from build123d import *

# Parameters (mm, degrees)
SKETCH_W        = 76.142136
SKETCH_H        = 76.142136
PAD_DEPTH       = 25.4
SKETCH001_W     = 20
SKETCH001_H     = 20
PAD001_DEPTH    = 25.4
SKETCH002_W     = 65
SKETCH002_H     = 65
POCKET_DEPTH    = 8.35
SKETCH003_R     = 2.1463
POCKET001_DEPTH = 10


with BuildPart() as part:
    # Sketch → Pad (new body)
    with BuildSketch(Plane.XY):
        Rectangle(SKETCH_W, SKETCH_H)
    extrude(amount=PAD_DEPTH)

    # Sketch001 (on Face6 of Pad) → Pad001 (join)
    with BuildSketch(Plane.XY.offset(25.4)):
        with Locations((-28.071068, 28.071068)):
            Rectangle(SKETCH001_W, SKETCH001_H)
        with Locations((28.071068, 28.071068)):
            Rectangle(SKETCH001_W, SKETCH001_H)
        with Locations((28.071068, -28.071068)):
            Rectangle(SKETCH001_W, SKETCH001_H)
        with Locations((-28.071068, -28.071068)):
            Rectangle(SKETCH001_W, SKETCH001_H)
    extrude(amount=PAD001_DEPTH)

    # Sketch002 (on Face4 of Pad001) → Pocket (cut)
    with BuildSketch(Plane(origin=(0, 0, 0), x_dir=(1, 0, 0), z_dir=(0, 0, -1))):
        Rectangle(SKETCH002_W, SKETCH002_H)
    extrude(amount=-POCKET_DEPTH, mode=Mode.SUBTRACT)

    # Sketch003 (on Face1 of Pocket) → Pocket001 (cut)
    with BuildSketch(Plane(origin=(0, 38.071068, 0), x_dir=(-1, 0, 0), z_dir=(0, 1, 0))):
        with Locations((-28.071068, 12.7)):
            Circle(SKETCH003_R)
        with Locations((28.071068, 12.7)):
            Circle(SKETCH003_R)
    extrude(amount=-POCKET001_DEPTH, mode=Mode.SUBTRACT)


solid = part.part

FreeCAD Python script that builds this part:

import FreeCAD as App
import Part
import Sketcher

V = App.Vector
Q = App.Units.Quantity


def add_polygon(sketch, points):
    """Adds a closed chain of lines whose ends are joined by coincident constraints."""
    first, n = sketch.GeometryCount, len(points)
    for a, b in zip(points, points[1:] + points[:1]):
        sketch.addGeometry(Part.LineSegment(App.Vector(*a, 0), App.Vector(*b, 0)), False)
    for i in range(n):
        sketch.addConstraint(Sketcher.Constraint("Coincident", first + i, 2, first + (i + 1) % n, 1))

doc = App.newDocument("Part")
body = doc.addObject("PartDesign::Body", "Body")

# Sketch on XY plane
sketch1 = body.newObject("Sketcher::SketchObject", "Sketch")
sketch1.AttachmentSupport = (doc.getObject("XY_Plane"), [""])
sketch1.MapMode = "FlatFace"
add_polygon(sketch1, [(-38, 38), (-38, -38), (38, -38), (38, 38)])  # lines 0-3
sketch1.addConstraint(Sketcher.Constraint("Vertical", 0))
sketch1.addConstraint(Sketcher.Constraint("Horizontal", 1))
sketch1.addConstraint(Sketcher.Constraint("Vertical", 2))
sketch1.addConstraint(Sketcher.Constraint("Horizontal", 3))
sketch1.addConstraint(Sketcher.Constraint("Symmetric", 0, 2, 2, 2, -1, 1))
sketch1.addConstraint(Sketcher.Constraint("Equal", 3, 0))
sketch1.addConstraint(Sketcher.Constraint("DistanceX", 1, 1, 1, 2, Q("76.142136 mm")))
pad1 = body.newObject("PartDesign::Pad", "Pad")
pad1.Profile = sketch1
pad1.Length = 25.4

# Sketch on XY plane
sketch2 = body.newObject("Sketcher::SketchObject", "Sketch001")
sketch2.AttachmentSupport = (doc.getObject("XY_Plane"), [""])
sketch2.MapMode = "FlatFace"
sketch2.AttachmentOffset = App.Placement(V(0, 0, 25.4), App.Rotation())
add_polygon(sketch2, [(-38, 38), (-38, 18), (-18, 18), (-18, 38)])  # lines 0-3
add_polygon(sketch2, [(18, 38), (18, 18), (38, 18), (38, 38)])  # lines 4-7
add_polygon(sketch2, [(18, -18), (18, -38), (38, -38), (38, -18)])  # lines 8-11
add_polygon(sketch2, [(-38, -18), (-38, -38), (-18, -38), (-18, -18)])  # lines 12-15
sketch2.addConstraint(Sketcher.Constraint("Vertical", 0))
sketch2.addConstraint(Sketcher.Constraint("Horizontal", 1))
sketch2.addConstraint(Sketcher.Constraint("Vertical", 2))
sketch2.addConstraint(Sketcher.Constraint("Horizontal", 3))
sketch2.addConstraint(Sketcher.Constraint("Vertical", 4))
sketch2.addConstraint(Sketcher.Constraint("Horizontal", 5))
sketch2.addConstraint(Sketcher.Constraint("Vertical", 6))
sketch2.addConstraint(Sketcher.Constraint("Horizontal", 7))
sketch2.addConstraint(Sketcher.Constraint("Vertical", 8))
sketch2.addConstraint(Sketcher.Constraint("Horizontal", 9))
sketch2.addConstraint(Sketcher.Constraint("Vertical", 10))
sketch2.addConstraint(Sketcher.Constraint("Horizontal", 11))
sketch2.addConstraint(Sketcher.Constraint("Vertical", 12))
sketch2.addConstraint(Sketcher.Constraint("Horizontal", 13))
sketch2.addConstraint(Sketcher.Constraint("Vertical", 14))
sketch2.addConstraint(Sketcher.Constraint("Horizontal", 15))
sketch2.addConstraint(Sketcher.Constraint("Symmetric", 2, 2, 8, 2, -1, 1))
sketch2.addConstraint(Sketcher.Constraint("Symmetric", 0, 2, 10, 2, -1, 1))
sketch2.addConstraint(Sketcher.Constraint("Symmetric", 6, 2, 12, 2, -1, 1))
sketch2.addConstraint(Sketcher.Constraint("Symmetric", 4, 2, 14, 2, -1, 1))
sketch2.addConstraint(Sketcher.Constraint("Symmetric", 1, 2, 4, 2, -2))
sketch2.addConstraint(Sketcher.Constraint("Symmetric", 3, 2, 6, 2, -2))
sketch2.addConstraint(Sketcher.Constraint("Equal", 15, 0))
sketch2.addConstraint(Sketcher.Constraint("DistanceX", 1, 1, 1, 2, Q("20 mm")))
sketch2.addConstraint(Sketcher.Constraint("DistanceY", -1, 1, 0, 2, Q("18.071068 mm")))
sketch2.addConstraint(Sketcher.Constraint("DistanceX", 1, 2, -1, 1, Q("18.071068 mm")))
pad2 = body.newObject("PartDesign::Pad", "Pad001")
pad2.Profile = sketch2
pad2.Length = 25.4

# Sketch on XY plane
sketch3 = body.newObject("Sketcher::SketchObject", "Sketch002")
sketch3.AttachmentSupport = (doc.getObject("XY_Plane"), [""])
sketch3.MapMode = "FlatFace"
add_polygon(sketch3, [(-32, -32), (-32, 32), (32, 32), (32, -32)])  # lines 0-3
sketch3.addConstraint(Sketcher.Constraint("Vertical", 0))
sketch3.addConstraint(Sketcher.Constraint("Horizontal", 1))
sketch3.addConstraint(Sketcher.Constraint("Vertical", 2))
sketch3.addConstraint(Sketcher.Constraint("Horizontal", 3))
sketch3.addConstraint(Sketcher.Constraint("Symmetric", 0, 2, 2, 2, -1, 1))
sketch3.addConstraint(Sketcher.Constraint("Equal", 3, 0))
sketch3.addConstraint(Sketcher.Constraint("DistanceX", 1, 1, 1, 2, Q("65 mm")))
pocket1 = body.newObject("PartDesign::Pocket", "Pocket")
pocket1.Profile = sketch3
pocket1.Length = 8.35
pocket1.Reversed = True

# Sketch on XZ plane
sketch4 = body.newObject("Sketcher::SketchObject", "Sketch003")
sketch4.AttachmentSupport = (doc.getObject("XZ_Plane"), [""])
sketch4.MapMode = "FlatFace"
sketch4.AttachmentOffset = App.Placement(V(0, 0, -38.071068), App.Rotation())
sketch4.addGeometry(Part.Circle(V(28.1, 12.7, 0), V(0, 0, 1), 2.1), False)
sketch4.addGeometry(Part.Circle(V(-28.1, 12.7, 0), V(0, 0, 1), 2.1), False)
sketch4.addConstraint(Sketcher.Constraint("Equal", 0, 1))
sketch4.addConstraint(Sketcher.Constraint("Symmetric", 0, 3, 1, 3, -2))
sketch4.addConstraint(Sketcher.Constraint("Diameter", 0, Q("4.2926 mm")))
sketch4.addConstraint(Sketcher.Constraint("DistanceY", -1, 1, 0, 3, Q("12.7 mm")))
sketch4.addConstraint(Sketcher.Constraint("DistanceX", -1, 1, 0, 3, Q("28.071068 mm")))
pocket2 = body.newObject("PartDesign::Pocket", "Pocket001")
pocket2.Profile = sketch4
pocket2.Length = 10
pocket2.Reversed = True

doc.recompute()
